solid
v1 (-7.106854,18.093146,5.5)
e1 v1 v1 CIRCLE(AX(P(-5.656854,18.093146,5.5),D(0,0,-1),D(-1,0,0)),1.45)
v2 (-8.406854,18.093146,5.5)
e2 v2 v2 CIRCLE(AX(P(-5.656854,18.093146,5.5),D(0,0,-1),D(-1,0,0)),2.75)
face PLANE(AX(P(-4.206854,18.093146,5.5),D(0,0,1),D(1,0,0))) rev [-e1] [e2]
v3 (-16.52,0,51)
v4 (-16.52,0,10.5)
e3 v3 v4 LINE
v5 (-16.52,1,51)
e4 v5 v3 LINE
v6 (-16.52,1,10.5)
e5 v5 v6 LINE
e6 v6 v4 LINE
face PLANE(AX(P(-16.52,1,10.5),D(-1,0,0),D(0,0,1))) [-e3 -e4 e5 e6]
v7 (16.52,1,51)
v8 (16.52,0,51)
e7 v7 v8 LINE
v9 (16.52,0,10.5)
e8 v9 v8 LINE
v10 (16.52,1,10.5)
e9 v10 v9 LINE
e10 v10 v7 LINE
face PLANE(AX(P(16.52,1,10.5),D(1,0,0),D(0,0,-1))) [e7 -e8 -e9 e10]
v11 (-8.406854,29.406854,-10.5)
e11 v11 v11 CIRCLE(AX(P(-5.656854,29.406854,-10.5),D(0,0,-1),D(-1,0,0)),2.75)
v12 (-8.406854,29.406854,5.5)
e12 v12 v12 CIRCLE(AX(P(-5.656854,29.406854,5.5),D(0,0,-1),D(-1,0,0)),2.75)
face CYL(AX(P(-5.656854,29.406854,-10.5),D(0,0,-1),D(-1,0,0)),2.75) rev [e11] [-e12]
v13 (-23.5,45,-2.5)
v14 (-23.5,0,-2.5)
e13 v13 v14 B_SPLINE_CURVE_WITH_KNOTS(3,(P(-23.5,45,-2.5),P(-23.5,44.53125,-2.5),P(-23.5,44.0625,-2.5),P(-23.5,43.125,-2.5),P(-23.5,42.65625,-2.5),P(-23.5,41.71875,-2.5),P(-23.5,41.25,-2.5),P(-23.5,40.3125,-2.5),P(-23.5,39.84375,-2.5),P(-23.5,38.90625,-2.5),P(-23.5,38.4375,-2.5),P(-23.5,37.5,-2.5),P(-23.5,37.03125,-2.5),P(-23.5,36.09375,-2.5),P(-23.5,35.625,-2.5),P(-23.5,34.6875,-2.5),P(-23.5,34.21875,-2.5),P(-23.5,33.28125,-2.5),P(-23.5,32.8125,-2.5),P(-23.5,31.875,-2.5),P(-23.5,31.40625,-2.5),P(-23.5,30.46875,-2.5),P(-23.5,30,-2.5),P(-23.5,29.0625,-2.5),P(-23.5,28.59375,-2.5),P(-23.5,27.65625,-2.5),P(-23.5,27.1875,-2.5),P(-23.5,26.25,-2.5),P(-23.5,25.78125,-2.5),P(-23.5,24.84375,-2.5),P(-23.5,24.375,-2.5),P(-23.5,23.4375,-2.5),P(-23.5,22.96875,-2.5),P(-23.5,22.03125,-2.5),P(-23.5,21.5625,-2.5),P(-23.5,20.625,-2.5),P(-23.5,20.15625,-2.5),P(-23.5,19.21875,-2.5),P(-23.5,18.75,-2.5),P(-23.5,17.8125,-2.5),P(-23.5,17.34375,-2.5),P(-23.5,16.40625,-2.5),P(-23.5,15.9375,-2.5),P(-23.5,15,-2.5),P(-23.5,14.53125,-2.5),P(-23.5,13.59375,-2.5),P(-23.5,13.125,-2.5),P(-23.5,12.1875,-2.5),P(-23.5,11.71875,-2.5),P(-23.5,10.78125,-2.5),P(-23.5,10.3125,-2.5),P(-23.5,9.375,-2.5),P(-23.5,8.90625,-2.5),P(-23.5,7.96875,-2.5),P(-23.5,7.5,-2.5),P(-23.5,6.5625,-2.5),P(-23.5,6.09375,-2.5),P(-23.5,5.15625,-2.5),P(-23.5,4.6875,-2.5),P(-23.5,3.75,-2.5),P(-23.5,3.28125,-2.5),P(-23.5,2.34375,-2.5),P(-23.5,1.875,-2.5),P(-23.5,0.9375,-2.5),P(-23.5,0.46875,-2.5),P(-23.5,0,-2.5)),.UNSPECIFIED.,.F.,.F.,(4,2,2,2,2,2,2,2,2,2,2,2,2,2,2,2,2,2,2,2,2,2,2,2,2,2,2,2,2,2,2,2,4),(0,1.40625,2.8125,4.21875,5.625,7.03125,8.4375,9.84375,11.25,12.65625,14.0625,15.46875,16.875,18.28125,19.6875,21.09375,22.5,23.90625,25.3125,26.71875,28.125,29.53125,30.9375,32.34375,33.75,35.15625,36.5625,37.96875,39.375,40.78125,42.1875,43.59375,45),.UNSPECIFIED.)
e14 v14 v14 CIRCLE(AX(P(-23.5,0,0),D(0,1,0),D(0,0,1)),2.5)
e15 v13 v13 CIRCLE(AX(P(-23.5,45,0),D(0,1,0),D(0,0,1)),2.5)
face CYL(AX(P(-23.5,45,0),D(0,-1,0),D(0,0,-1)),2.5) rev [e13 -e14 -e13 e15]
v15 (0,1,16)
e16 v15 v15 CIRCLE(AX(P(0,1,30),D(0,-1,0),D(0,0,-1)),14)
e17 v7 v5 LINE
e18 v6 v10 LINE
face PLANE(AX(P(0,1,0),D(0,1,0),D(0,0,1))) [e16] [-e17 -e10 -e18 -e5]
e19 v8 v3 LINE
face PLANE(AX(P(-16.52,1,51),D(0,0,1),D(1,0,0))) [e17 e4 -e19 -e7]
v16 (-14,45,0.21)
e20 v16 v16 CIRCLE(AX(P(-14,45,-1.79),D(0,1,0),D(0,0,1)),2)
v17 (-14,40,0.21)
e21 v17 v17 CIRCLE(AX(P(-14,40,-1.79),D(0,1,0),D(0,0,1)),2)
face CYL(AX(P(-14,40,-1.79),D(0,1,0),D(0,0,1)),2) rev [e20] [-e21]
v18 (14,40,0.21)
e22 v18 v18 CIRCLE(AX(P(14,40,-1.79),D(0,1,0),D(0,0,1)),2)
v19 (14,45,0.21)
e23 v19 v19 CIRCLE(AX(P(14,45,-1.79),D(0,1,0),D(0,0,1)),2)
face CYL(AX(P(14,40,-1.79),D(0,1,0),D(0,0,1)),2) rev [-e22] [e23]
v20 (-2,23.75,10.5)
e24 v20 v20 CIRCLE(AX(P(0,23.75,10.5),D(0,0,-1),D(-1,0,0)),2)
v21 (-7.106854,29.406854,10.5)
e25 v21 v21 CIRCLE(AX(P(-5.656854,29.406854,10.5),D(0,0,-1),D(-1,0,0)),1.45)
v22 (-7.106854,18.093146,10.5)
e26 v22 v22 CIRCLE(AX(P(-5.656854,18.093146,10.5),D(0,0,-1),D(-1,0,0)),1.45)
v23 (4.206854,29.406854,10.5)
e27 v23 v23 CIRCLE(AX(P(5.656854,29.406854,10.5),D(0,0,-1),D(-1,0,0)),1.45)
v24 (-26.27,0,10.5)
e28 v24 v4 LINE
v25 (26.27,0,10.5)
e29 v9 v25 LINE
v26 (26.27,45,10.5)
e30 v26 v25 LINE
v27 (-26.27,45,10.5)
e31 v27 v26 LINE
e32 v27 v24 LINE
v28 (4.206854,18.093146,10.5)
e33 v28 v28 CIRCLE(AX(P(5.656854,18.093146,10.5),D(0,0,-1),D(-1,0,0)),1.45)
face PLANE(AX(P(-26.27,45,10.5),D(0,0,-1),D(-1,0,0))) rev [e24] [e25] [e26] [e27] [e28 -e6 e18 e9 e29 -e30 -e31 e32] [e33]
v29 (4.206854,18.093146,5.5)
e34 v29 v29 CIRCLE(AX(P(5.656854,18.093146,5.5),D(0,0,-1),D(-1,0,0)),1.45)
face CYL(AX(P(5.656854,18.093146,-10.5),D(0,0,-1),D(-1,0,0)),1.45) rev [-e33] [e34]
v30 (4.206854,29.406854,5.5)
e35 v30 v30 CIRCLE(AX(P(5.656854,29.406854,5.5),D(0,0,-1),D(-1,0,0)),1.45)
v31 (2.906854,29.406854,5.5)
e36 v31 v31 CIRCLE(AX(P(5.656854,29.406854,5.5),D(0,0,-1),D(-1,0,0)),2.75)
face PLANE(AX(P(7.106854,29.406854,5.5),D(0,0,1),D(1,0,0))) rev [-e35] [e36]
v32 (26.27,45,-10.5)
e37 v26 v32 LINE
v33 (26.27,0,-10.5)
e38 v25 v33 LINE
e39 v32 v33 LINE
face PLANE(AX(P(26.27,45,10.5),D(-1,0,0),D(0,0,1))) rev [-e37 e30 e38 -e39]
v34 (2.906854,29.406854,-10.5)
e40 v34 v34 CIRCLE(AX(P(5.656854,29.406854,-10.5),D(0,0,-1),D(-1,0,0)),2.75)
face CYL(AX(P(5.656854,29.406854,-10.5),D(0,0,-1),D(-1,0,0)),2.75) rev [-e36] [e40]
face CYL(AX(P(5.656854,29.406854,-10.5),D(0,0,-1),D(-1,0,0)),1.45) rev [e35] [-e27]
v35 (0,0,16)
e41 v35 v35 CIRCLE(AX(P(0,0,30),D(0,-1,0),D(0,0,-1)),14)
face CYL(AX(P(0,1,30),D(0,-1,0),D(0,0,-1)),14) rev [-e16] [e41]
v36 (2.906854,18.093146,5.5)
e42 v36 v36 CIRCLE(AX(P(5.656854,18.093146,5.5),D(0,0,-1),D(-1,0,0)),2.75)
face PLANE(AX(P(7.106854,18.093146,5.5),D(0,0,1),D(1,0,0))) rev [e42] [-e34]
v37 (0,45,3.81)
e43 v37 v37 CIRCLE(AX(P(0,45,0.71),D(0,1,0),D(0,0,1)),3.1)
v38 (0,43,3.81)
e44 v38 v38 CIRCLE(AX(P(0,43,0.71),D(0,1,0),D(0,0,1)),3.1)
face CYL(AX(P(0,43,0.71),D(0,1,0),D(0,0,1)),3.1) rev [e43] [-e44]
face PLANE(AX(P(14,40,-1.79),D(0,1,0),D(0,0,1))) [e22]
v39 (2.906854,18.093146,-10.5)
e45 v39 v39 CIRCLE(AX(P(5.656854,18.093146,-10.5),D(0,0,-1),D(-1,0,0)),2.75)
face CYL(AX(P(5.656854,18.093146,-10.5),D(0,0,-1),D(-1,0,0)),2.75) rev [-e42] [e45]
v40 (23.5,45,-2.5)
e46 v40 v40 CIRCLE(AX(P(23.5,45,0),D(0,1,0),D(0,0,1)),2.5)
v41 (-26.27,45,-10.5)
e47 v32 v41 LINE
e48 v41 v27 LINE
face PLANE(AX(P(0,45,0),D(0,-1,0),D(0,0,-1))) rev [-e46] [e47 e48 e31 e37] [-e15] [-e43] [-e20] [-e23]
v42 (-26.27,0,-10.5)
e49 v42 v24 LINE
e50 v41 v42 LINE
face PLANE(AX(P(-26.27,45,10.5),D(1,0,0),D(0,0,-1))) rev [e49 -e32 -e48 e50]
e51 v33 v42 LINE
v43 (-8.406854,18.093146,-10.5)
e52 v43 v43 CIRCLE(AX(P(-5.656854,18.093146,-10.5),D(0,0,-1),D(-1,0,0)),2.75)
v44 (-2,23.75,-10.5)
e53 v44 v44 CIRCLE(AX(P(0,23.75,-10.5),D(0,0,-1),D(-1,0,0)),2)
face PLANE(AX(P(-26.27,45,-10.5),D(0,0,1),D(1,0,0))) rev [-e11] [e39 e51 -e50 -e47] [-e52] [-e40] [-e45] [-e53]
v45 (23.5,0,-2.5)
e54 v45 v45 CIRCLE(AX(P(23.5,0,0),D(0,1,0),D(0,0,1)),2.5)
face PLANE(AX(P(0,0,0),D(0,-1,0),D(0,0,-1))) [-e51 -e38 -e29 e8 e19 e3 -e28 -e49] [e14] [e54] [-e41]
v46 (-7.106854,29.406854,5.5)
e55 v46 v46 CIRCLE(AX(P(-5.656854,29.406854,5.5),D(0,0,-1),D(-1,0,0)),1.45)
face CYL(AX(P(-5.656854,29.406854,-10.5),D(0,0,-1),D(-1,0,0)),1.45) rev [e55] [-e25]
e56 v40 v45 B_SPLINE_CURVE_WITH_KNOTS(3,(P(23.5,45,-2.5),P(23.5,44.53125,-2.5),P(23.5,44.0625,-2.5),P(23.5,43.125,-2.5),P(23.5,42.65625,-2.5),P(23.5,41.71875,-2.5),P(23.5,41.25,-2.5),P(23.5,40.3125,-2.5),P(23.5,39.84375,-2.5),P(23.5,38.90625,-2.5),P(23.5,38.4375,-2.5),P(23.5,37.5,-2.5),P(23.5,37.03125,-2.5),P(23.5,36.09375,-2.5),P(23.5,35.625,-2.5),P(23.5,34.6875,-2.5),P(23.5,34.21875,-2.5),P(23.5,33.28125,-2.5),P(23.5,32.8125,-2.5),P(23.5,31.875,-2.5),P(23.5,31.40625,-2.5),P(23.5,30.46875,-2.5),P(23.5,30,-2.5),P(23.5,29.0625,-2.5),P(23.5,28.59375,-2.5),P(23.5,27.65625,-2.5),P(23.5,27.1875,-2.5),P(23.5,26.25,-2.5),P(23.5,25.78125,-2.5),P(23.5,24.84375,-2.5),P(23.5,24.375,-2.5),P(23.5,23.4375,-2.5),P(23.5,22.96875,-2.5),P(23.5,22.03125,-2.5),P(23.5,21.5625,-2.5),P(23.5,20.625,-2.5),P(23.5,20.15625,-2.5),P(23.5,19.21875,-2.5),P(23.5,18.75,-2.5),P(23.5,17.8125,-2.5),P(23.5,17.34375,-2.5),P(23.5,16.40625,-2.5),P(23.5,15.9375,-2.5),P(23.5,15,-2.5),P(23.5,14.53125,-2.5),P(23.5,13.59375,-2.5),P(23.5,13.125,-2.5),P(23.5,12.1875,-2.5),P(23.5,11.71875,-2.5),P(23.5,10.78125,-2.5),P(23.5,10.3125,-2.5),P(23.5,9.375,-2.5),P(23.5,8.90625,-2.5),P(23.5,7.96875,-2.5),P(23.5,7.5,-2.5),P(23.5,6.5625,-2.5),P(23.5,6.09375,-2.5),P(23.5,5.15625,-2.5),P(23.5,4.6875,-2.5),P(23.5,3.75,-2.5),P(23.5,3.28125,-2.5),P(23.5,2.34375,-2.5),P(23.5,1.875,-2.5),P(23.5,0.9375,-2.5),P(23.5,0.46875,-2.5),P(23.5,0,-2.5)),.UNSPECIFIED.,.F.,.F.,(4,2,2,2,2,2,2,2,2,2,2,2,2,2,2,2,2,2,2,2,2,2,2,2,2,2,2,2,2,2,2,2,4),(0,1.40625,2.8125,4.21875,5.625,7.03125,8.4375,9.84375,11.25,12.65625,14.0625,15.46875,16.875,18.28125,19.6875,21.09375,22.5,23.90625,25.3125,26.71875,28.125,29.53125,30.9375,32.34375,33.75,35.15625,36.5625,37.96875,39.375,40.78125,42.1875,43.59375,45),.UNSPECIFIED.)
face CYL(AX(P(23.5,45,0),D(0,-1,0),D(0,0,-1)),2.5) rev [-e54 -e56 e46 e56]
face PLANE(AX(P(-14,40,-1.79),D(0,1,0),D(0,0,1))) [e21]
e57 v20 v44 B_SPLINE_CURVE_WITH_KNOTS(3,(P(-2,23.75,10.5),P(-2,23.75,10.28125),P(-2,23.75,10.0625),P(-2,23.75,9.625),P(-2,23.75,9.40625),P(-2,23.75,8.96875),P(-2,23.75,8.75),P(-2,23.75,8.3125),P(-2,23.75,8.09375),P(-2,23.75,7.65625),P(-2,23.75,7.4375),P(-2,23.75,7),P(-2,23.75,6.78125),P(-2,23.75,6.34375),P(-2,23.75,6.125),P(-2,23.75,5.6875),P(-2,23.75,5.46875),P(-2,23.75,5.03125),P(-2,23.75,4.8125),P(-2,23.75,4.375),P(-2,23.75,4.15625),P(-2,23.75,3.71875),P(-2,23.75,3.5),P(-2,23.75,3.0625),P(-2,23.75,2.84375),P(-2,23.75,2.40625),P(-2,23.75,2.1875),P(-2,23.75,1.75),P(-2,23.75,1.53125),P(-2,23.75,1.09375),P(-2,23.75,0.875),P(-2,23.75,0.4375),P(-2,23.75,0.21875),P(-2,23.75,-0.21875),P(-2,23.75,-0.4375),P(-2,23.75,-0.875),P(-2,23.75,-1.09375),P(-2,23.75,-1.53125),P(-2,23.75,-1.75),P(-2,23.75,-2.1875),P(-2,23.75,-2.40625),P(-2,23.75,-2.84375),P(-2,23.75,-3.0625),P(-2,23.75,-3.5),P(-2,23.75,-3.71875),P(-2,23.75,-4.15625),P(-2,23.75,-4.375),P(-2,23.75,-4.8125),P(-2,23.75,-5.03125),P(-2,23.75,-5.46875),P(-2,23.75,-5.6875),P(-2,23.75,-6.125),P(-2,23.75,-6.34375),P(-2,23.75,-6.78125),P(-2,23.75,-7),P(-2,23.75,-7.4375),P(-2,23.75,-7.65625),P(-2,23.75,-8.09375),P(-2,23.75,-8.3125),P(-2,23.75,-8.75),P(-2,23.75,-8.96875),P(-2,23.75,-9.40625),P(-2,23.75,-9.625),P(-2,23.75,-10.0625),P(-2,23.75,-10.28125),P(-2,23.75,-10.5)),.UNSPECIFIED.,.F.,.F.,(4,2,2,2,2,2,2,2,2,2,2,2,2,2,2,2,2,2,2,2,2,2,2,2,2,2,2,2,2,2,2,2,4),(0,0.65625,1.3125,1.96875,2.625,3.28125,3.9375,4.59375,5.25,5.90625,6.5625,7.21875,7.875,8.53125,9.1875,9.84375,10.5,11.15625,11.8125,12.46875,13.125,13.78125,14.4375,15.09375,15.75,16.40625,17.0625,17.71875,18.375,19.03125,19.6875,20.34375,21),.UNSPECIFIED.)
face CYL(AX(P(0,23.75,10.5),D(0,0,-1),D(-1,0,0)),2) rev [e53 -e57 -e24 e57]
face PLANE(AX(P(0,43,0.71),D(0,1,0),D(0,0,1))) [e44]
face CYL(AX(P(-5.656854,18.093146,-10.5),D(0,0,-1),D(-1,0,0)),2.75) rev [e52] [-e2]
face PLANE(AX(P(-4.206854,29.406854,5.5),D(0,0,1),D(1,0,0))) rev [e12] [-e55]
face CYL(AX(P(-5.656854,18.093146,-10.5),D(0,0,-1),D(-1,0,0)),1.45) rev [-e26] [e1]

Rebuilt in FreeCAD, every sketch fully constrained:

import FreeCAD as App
import Part
import Sketcher
from FreeCAD import Vector

doc = App.newDocument("Part")
body = doc.addObject("PartDesign::Body", "Body")

sketch1 = body.newObject("Sketcher::SketchObject", "Sketch")
sketch1.AttachmentSupport = (doc.getObject("XZ_Plane"), [""])
sketch1.MapMode = "FlatFace"
sketch1.addGeometry([
    Part.LineSegment(Vector(-26.3, -10.5, 0), Vector(-26.3, 10.5, 0)),
    Part.LineSegment(Vector(-26.3, 10.5, 0), Vector(26.3, 10.5, 0)),
    Part.LineSegment(Vector(26.3, 10.5, 0), Vector(26.3, -10.5, 0)),
    Part.LineSegment(Vector(26.3, -10.5, 0), Vector(-26.3, -10.5, 0)),
    Part.Circle(Vector(-23.5, 0, 0), Vector(0, 0, 1), 2.5),
    Part.Circle(Vector(23.5, 0, 0), Vector(0, 0, 1), 2.5),
], False)
sketch1.addConstraint([
    Sketcher.Constraint("Coincident", 0, 2, 1, 1),
    Sketcher.Constraint("Coincident", 1, 2, 2, 1),
    Sketcher.Constraint("Coincident", 2, 2, 3, 1),
    Sketcher.Constraint("Coincident", 3, 2, 0, 1),
    Sketcher.Constraint("Vertical", 0),
    Sketcher.Constraint("Horizontal", 1),
    Sketcher.Constraint("Vertical", 2),
    Sketcher.Constraint("Horizontal", 3),
    Sketcher.Constraint("Equal", 4, 5),
    Sketcher.Constraint("Symmetric", 4, 3, 5, 3, -1, 1),
    Sketcher.Constraint("Symmetric", 0, 2, 2, 2, -1, 1),
    Sketcher.Constraint("PointOnObject", 4, 3, -1),
    Sketcher.Constraint("Diameter", 4, 5.0),
    Sketcher.Constraint("DistanceY", 0, 1, 0, 2, 21.0),
    Sketcher.Constraint("DistanceX", 4, 3, 5, 3, 47.0),
    Sketcher.Constraint("DistanceX", 1, 1, 1, 2, 52.54),
])
pad1 = body.newObject("PartDesign::Pad", "Pad")
pad1.Profile = sketch1
pad1.Length = 45
pad1.Reversed = True

sketch2 = body.newObject("Sketcher::SketchObject", "Sketch001")
sketch2.AttachmentSupport = (doc.getObject("XY_Plane"), [""])
sketch2.MapMode = "FlatFace"
sketch2.AttachmentOffset = App.Placement(Vector(0, 0, -10.5), App.Rotation())
sketch2.addGeometry(Part.Circle(Vector(0, 23.8, 0), Vector(0, 0, 1), 2), False)
sketch2.addConstraint([
    Sketcher.Constraint("PointOnObject", 0, 3, -2),
    Sketcher.Constraint("Diameter", 0, 4.0),
    Sketcher.Constraint("DistanceY", -1, 1, 0, 3, 23.75),
])
pocket1 = body.newObject("PartDesign::Pocket", "Pocket")
pocket1.Profile = sketch2
pocket1.Type = "ThroughAll"
pocket1.Reversed = True

sketch3 = body.newObject("Sketcher::SketchObject", "Sketch002")
sketch3.AttachmentSupport = (doc.getObject("XZ_Plane"), [""])
sketch3.MapMode = "FlatFace"
sketch3.AttachmentOffset = App.Placement(Vector(0, 0, -45), App.Rotation())
sketch3.addGeometry([
    Part.Circle(Vector(-14, -1.8, 0), Vector(0, 0, 1), 2),
    Part.Circle(Vector(14, -1.8, 0), Vector(0, 0, 1), 2),
], False)
sketch3.addConstraint([
    Sketcher.Constraint("Equal", 0, 1),
    Sketcher.Constraint("Symmetric", 0, 3, 1, 3, -2),
    Sketcher.Constraint("Diameter", 0, 4.0),
    Sketcher.Constraint("DistanceX", 0, 3, -1, 1, 14.0),
    Sketcher.Constraint("DistanceY", 0, 3, -1, 1, 1.79),
])
pocket2 = body.newObject("PartDesign::Pocket", "Pocket001")
pocket2.Profile = sketch3
pocket2.Length = 5
pocket2.Reversed = True

sketch4 = body.newObject("Sketcher::SketchObject", "Sketch003")
sketch4.AttachmentSupport = (doc.getObject("XY_Plane"), [""])
sketch4.MapMode = "FlatFace"
sketch4.AttachmentOffset = App.Placement(Vector(0, 0, -10.5), App.Rotation())
sketch4.addGeometry([
    Part.Circle(Vector(-5.7, 18.1, 0), Vector(0, 0, 1), 1.4),
    Part.Circle(Vector(5.7, 18.1, 0), Vector(0, 0, 1), 1.4),
    Part.Circle(Vector(5.7, 29.4, 0), Vector(0, 0, 1), 1.4),
    Part.Circle(Vector(-5.7, 29.4, 0), Vector(0, 0, 1), 1.4),
], False)
sketch4.addConstraint([
    Sketcher.Constraint("Equal", 0, 1),
    Sketcher.Constraint("Equal", 1, 2),
    Sketcher.Constraint("Equal", 2, 3),
    Sketcher.Constraint("Symmetric", 0, 3, 1, 3, -2),
    Sketcher.Constraint("Symmetric", 2, 3, 3, 3, -2),
    Sketcher.Constraint("Vertical", 1, 3, 2, 3),
    Sketcher.Constraint("Diameter", 0, 2.9),
    Sketcher.Constraint("DistanceX", 0, 3, 1, 3, 11.313708),
    Sketcher.Constraint("DistanceY", 1, 3, 2, 3, 11.313708),
    Sketcher.Constraint("DistanceY", -1, 1, 0, 3, 18.093146),
])
doc.recompute()
hole = body.newObject("PartDesign::Hole", "Hole")
hole.Profile = sketch4
hole.ThreadType = "None"
hole.Diameter = 2.9
hole.DepthType = "ThroughAll"
hole.HoleCutType = "Counterbore"
hole.HoleCutDiameter = 5.5
hole.HoleCutDepth = 16
hole.Reversed = True

sketch5 = body.newObject("Sketcher::SketchObject", "Sketch004")
sketch5.AttachmentSupport = (doc.getObject("XZ_Plane"), [""])
sketch5.MapMode = "FlatFace"
sketch5.AttachmentOffset = App.Placement(Vector(0, 0, -45), App.Rotation())
sketch5.addGeometry(Part.Circle(Vector(0, 0.7, 0), Vector(0, 0, 1), 3.1), False)
sketch5.addConstraint([
    Sketcher.Constraint("PointOnObject", 0, 3, -2),
    Sketcher.Constraint("Diameter", 0, 6.2),
    Sketcher.Constraint("DistanceY", -1, 1, 0, 3, 0.71),
])
pocket3 = body.newObject("PartDesign::Pocket", "Pocket002")
pocket3.Profile = sketch5
pocket3.Length = 2
pocket3.Reversed = True

sketch6 = body.newObject("Sketcher::SketchObject", "Sketch005")
sketch6.AttachmentSupport = (doc.getObject("XZ_Plane"), [""])
sketch6.MapMode = "FlatFace"
sketch6.addGeometry([
    Part.LineSegment(Vector(-17, 51, 0), Vector(-17, 10, 0)),
    Part.LineSegment(Vector(-17, 10, 0), Vector(17, 10, 0)),
    Part.LineSegment(Vector(17, 10, 0), Vector(17, 51, 0)),
    Part.LineSegment(Vector(17, 51, 0), Vector(-17, 51, 0)),
    Part.Circle(Vector(0, 30, 0), Vector(0, 0, 1), 14),
], False)
sketch6.addConstraint([
    Sketcher.Constraint("Coincident", 0, 2, 1, 1),
    Sketcher.Constraint("Coincident", 1, 2, 2, 1),
    Sketcher.Constraint("Coincident", 2, 2, 3, 1),
    Sketcher.Constraint("Coincident", 3, 2, 0, 1),
    Sketcher.Constraint("Vertical", 0),
    Sketcher.Constraint("Horizontal", 1),
    Sketcher.Constraint("Vertical", 2),
    Sketcher.Constraint("Horizontal", 3),
    Sketcher.Constraint("PointOnObject", 4, 3, -2),
    Sketcher.Constraint("Diameter", 4, 28.0),
    Sketcher.Constraint("DistanceY", 0, 2, 0, 1, 40.5),
    Sketcher.Constraint("DistanceY", -1, 1, 4, 3, 30.0),
    Sketcher.Constraint("DistanceY", -1, 1, 2, 2, 51.0),
    Sketcher.Constraint("DistanceX", 1, 1, 1, 2, 33.04),
    Sketcher.Constraint("DistanceX", 0, 2, -1, 1, 16.52),
])
pad2 = body.newObject("PartDesign::Pad", "Pad001")
pad2.Profile = sketch6
pad2.Length = 1
pad2.Reversed = True

doc.recompute()
